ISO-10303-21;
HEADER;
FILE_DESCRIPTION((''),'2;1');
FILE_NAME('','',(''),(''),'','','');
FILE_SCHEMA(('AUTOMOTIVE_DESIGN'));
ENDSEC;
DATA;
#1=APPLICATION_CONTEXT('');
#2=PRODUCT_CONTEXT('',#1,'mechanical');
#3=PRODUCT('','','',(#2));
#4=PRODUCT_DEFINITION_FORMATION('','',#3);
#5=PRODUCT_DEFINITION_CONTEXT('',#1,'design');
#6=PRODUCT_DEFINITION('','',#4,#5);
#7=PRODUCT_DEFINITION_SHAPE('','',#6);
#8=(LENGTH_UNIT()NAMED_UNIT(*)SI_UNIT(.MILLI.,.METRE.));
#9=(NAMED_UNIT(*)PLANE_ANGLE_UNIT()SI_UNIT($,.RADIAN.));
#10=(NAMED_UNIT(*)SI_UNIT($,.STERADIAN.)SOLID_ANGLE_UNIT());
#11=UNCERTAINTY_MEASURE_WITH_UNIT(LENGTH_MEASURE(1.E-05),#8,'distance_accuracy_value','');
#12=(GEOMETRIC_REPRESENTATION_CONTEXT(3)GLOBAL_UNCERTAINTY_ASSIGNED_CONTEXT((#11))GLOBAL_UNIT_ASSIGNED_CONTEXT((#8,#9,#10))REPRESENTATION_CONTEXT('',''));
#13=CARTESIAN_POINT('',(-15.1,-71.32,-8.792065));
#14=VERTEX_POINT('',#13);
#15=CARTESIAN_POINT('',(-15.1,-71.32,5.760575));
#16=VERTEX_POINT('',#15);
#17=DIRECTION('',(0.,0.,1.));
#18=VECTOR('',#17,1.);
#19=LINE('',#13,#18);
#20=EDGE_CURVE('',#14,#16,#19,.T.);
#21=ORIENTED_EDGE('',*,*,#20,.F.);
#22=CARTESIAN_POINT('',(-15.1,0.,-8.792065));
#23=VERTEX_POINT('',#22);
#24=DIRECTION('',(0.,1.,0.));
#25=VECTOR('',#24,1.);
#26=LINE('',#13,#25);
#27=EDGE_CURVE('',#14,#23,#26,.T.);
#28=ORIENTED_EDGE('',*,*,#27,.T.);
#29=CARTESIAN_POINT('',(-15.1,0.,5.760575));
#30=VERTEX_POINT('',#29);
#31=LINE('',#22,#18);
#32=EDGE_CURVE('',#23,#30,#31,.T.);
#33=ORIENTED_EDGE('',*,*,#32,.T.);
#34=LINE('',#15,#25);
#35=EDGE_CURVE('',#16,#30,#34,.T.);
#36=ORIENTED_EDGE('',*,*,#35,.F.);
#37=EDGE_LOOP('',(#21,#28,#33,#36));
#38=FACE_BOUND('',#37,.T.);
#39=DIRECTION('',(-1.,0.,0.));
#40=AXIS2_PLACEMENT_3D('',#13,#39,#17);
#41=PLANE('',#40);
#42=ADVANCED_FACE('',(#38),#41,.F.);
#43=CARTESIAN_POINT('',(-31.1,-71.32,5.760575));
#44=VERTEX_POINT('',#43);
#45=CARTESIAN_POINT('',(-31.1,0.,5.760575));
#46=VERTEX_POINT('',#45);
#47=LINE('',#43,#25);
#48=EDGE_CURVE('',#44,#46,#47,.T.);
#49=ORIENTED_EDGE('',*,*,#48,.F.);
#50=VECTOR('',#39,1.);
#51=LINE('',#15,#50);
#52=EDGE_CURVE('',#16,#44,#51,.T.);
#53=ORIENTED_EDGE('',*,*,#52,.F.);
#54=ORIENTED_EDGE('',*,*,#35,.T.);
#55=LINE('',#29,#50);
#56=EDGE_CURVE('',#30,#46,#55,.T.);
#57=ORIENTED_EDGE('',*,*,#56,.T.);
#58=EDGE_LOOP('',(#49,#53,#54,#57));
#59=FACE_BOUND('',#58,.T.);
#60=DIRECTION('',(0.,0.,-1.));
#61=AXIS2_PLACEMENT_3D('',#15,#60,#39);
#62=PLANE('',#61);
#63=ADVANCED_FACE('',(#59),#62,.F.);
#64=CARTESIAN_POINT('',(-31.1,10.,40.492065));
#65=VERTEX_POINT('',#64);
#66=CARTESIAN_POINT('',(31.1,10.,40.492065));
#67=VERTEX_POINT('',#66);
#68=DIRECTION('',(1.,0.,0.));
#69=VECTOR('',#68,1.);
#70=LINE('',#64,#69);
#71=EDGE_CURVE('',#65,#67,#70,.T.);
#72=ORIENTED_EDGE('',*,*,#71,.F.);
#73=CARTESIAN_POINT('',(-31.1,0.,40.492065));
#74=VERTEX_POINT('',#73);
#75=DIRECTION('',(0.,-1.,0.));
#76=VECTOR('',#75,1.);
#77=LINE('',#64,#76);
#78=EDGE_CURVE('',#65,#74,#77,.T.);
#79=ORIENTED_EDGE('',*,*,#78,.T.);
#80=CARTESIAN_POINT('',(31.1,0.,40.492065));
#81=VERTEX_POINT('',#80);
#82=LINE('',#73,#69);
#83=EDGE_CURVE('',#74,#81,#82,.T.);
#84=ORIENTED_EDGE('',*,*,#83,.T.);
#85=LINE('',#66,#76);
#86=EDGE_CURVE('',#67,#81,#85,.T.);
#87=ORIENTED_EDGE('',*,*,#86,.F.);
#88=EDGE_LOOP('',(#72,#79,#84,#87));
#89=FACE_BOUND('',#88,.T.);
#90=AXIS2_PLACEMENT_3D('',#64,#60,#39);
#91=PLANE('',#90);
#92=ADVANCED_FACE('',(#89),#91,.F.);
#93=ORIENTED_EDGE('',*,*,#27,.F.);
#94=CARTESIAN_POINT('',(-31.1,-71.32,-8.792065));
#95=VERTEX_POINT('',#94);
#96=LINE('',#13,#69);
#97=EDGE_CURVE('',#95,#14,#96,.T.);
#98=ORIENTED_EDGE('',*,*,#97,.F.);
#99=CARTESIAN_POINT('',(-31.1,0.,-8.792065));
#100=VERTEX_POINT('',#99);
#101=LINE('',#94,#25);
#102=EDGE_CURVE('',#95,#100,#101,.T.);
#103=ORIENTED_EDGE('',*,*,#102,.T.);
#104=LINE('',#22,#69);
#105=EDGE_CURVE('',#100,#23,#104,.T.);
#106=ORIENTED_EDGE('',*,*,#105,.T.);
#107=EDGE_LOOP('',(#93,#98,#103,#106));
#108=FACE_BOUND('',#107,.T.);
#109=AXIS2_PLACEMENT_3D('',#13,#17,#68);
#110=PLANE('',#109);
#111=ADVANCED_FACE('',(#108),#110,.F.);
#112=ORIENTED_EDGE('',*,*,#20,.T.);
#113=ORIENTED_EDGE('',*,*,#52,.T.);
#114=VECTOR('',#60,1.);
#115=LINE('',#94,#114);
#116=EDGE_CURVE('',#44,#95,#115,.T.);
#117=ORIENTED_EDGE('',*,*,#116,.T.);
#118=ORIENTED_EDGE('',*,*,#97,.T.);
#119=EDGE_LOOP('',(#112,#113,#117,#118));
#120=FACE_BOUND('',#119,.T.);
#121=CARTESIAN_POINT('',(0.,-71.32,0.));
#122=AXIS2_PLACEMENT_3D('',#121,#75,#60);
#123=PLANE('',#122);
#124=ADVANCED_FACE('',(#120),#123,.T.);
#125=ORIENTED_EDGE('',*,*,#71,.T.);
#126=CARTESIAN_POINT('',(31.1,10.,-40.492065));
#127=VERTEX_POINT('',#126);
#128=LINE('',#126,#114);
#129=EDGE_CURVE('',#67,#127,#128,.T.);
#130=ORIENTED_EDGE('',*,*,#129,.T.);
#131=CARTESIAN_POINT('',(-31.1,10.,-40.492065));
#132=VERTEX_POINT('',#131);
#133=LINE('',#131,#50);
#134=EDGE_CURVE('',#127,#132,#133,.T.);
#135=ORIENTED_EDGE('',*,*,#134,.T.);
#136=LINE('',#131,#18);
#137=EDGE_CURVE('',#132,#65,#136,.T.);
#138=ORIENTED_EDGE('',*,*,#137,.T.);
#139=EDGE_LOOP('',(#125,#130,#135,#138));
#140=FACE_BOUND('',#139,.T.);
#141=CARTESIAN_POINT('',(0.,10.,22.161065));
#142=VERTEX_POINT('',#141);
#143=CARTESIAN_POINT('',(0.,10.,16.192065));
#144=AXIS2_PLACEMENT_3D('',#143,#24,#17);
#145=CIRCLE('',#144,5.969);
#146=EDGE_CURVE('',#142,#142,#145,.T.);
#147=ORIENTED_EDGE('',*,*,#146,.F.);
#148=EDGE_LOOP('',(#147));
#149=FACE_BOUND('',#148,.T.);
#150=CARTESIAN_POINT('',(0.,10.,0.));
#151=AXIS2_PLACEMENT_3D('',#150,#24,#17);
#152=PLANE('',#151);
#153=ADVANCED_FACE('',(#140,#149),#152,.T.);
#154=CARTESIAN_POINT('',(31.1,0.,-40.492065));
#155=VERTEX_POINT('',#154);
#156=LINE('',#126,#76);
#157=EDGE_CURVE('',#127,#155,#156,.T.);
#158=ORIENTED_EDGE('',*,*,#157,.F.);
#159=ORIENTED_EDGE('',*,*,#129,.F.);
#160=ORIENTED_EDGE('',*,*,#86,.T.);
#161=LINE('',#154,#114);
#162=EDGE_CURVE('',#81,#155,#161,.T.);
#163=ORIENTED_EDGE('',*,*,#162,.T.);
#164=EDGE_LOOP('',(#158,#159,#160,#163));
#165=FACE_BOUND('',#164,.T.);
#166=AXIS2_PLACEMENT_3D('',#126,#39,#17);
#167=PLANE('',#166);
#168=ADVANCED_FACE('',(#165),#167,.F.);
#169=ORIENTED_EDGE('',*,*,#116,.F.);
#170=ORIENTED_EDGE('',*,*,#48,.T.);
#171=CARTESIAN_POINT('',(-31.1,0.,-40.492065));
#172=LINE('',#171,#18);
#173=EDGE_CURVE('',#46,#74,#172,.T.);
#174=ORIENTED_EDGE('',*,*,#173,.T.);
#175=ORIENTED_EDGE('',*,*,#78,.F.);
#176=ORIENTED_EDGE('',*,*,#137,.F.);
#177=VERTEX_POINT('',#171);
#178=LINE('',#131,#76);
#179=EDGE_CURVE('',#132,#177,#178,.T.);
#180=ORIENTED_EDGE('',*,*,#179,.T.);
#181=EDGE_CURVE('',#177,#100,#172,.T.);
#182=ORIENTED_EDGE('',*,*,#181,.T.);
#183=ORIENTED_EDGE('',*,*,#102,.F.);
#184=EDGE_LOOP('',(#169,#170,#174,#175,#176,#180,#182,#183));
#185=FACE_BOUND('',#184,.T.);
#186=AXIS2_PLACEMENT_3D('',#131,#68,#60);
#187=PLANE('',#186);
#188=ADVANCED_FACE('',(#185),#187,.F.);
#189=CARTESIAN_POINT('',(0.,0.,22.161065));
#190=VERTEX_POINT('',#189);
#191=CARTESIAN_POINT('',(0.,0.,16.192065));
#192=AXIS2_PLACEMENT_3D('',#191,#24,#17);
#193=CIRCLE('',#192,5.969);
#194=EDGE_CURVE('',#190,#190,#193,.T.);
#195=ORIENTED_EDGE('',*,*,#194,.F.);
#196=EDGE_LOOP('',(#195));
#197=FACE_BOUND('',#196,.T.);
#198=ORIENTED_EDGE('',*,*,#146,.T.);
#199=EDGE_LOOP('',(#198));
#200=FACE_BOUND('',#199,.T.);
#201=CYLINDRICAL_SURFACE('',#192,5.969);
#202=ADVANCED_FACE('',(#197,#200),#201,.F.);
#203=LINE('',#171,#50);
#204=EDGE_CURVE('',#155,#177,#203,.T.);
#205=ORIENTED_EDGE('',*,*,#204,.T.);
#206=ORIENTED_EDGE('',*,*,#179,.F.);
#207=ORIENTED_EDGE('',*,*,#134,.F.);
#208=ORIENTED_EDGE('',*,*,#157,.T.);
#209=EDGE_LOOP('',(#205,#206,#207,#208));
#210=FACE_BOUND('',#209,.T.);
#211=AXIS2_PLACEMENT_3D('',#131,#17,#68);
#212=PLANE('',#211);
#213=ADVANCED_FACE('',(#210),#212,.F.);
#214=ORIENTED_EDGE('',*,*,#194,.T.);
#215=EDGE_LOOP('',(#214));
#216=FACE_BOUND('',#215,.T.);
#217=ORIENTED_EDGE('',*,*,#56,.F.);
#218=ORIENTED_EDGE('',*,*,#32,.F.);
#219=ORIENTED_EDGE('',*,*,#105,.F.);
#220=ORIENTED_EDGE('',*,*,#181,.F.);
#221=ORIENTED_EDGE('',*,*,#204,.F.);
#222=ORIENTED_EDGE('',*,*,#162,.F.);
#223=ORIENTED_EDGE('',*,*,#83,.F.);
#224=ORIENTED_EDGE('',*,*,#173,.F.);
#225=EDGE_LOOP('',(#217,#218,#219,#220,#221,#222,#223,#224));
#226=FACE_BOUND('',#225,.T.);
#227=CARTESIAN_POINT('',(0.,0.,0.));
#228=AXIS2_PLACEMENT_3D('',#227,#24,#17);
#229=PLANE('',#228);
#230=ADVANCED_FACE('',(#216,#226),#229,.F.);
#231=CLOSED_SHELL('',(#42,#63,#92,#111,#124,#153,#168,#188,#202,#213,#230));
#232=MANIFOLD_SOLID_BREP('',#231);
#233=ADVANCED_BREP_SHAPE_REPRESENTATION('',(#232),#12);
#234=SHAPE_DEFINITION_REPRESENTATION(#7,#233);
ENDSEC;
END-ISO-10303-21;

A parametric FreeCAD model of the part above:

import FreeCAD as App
import Part
import Sketcher
from FreeCAD import Vector

doc = App.newDocument("Part")
params = doc.addObject("Spreadsheet::Sheet", "Params")
for row, (alias, value) in enumerate([
    ("sketch1_width", "62.2 mm"),
    ("pad1_length", "10 mm"),
    ("pocket1_length", "10 mm"),
    ("sketch3_width", "16 mm"),
    ("pad2_length", "71.32 mm"),
], start=1):
    params.set(f"A{row}", alias)
    params.set(f"B{row}", "=" + value)
    params.setAlias(f"B{row}", alias)

body = doc.addObject("PartDesign::Body", "Body")

# Sketch on XZ plane
sketch1 = body.newObject("Sketcher::SketchObject", "Sketch")
sketch1.AttachmentSupport = (doc.getObject("XZ_Plane"), [""])
sketch1.MapMode = "FlatFace"
sketch1.addGeometry([
    Part.LineSegment(Vector(-31.1, -40.492065, 0), Vector(-31.1, 40.492065, 0)),
    Part.LineSegment(Vector(-31.1, 40.492065, 0), Vector(31.1, 40.492065, 0)),
    Part.LineSegment(Vector(31.1, 40.492065, 0), Vector(31.1, -40.492065, 0)),
    Part.LineSegment(Vector(31.1, -40.492065, 0), Vector(-31.1, -40.492065, 0)),
], False)
sketch1.addConstraint([
    Sketcher.Constraint("Coincident", 0, 2, 1, 1),
    Sketcher.Constraint("Coincident", 1, 2, 2, 1),
    Sketcher.Constraint("Coincident", 2, 2, 3, 1),
    Sketcher.Constraint("Coincident", 3, 2, 0, 1),
    Sketcher.Constraint("Vertical", 0),
    Sketcher.Constraint("Horizontal", 1),
    Sketcher.Constraint("Vertical", 2),
    Sketcher.Constraint("Horizontal", 3),
    Sketcher.Constraint("Symmetric", 0, 2, 2, 2, -1, 1),
    Sketcher.Constraint("DistanceX", 1, 1, 1, 2, 62.2),
    Sketcher.Constraint("DistanceY", 0, 1, 0, 2, 80.98413),
])
sketch1.setExpression("Constraints[9]", "Params.sketch1_width")
pad1 = body.newObject("PartDesign::Pad", "Pad")
pad1.Profile = sketch1
pad1.setExpression("Length", "Params.pad1_length")
pad1.Reversed = True

# Sketch on XZ plane
sketch2 = body.newObject("Sketcher::SketchObject", "Sketch001")
sketch2.AttachmentSupport = (doc.getObject("XZ_Plane"), [""])
sketch2.MapMode = "FlatFace"
sketch2.AttachmentOffset = App.Placement(Vector(0, 0, -10), App.Rotation())
sketch2.addGeometry(Part.Circle(Vector(0, 16.192065, 0), Vector(0, 0, 1), 5.969), False)
sketch2.addConstraint([
    Sketcher.Constraint("PointOnObject", 0, 3, -2),
    Sketcher.Constraint("Diameter", 0, 11.938),
    Sketcher.Constraint("DistanceY", -1, 1, 0, 3, 16.192065),
])
pocket1 = body.newObject("PartDesign::Pocket", "Pocket")
pocket1.Profile = sketch2
pocket1.setExpression("Length", "Params.pocket1_length")
pocket1.Reversed = True

# Sketch on XZ plane
sketch3 = body.newObject("Sketcher::SketchObject", "Sketch002")
sketch3.AttachmentSupport = (doc.getObject("XZ_Plane"), [""])
sketch3.MapMode = "FlatFace"
sketch3.addGeometry([
    Part.LineSegment(Vector(-31.1, 5.760575, 0), Vector(-31.1, -8.792065, 0)),
    Part.LineSegment(Vector(-31.1, -8.792065, 0), Vector(-15.1, -8.792065, 0)),
    Part.LineSegment(Vector(-15.1, -8.792065, 0), Vector(-15.1, 5.760575, 0)),
    Part.LineSegment(Vector(-15.1, 5.760575, 0), Vector(-31.1, 5.760575, 0)),
], False)
sketch3.addConstraint([
    Sketcher.Constraint("Coincident", 0, 2, 1, 1),
    Sketcher.Constraint("Coincident", 1, 2, 2, 1),
    Sketcher.Constraint("Coincident", 2, 2, 3, 1),
    Sketcher.Constraint("Coincident", 3, 2, 0, 1),
    Sketcher.Constraint("Vertical", 0),
    Sketcher.Constraint("Horizontal", 1),
    Sketcher.Constraint("Vertical", 2),
    Sketcher.Constraint("Horizontal", 3),
    Sketcher.Constraint("DistanceX", 1, 1, 1, 2, 16.0),
    Sketcher.Constraint("DistanceX", 0, 2, -1, 1, 31.1),
    Sketcher.Constraint("DistanceY", 0, 2, 0, 1, 14.55264),
    Sketcher.Constraint("DistanceY", 0, 2, -1, 1, 8.792065),
])
sketch3.setExpression("Constraints[8]", "Params.sketch3_width")
pad2 = body.newObject("PartDesign::Pad", "Pad001")
pad2.Profile = sketch3
pad2.setExpression("Length", "Params.pad2_length")

doc.recompute()
